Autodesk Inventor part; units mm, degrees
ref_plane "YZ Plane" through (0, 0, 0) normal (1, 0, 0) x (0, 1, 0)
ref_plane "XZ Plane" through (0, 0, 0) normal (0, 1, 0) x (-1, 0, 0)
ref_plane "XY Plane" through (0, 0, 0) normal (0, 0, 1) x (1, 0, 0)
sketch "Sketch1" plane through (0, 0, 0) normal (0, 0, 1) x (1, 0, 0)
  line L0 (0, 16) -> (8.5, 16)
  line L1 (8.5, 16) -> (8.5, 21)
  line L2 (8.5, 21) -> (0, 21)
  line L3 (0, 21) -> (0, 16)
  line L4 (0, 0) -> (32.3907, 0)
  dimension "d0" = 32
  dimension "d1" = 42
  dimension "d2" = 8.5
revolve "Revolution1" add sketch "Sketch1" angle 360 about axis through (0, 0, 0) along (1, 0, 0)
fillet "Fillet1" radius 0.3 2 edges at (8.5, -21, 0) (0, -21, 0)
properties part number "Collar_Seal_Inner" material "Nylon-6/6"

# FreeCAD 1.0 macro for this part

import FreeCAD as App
import Part
import Sketcher

V = App.Vector


def edges_at(feature, points):
    """Names of the edges that pass closest to the given points."""
    edges = feature.Shape.Edges
    near = lambda p: min(range(len(edges)), key=lambda i: edges[i].distToShape(Part.Vertex(*p))[0])
    return sorted({f"Edge{near(p) + 1}" for p in points})


def add_polygon(sketch, points):
    """Adds a closed chain of lines whose ends are joined by coincident constraints."""
    first, n = sketch.GeometryCount, len(points)
    for a, b in zip(points, points[1:] + points[:1]):
        sketch.addGeometry(Part.LineSegment(App.Vector(*a, 0), App.Vector(*b, 0)), False)
    for i in range(n):
        sketch.addConstraint(Sketcher.Constraint("Coincident", first + i, 2, first + (i + 1) % n, 1))

doc = App.newDocument("Part")
params = doc.addObject("Spreadsheet::Sheet", "Params")
for row, (alias, value) in enumerate([
    ("sketch1_width", "8.5 mm"),
    ("sketch1_height", "5 mm"),
    ("revolution_angle", "360 deg"),
    ("fillet_radius", "0.3 mm"),
], start=1):
    params.set(f"A{row}", alias)
    params.set(f"B{row}", "=" + value)
    params.setAlias(f"B{row}", alias)

body = doc.addObject("PartDesign::Body", "Body")

sketch1 = doc.addObject("Sketcher::SketchObject", "Sketch")
body.addObject(sketch1)
sketch1.AttachmentSupport = (doc.XY_Plane, [""])
sketch1.MapMode = "FlatFace"
add_polygon(sketch1, [(0, 21), (0, 16), (8, 16), (8, 21)])
sketch1.addConstraint([
    Sketcher.Constraint("Vertical", 0),
    Sketcher.Constraint("Horizontal", 1),
    Sketcher.Constraint("Vertical", 2),
    Sketcher.Constraint("Horizontal", 3),
    Sketcher.Constraint("PointOnObject", 0, 2, -2),
    Sketcher.Constraint("DistanceX", 1, 1, 1, 2, 8.5),
    Sketcher.Constraint("DistanceY", 0, 2, 0, 1, 5.0),
    Sketcher.Constraint("DistanceY", -1, 1, 0, 2, 16.0),
])
sketch1.setExpression("Constraints[9]", "Params.sketch1_width")
sketch1.setExpression("Constraints[10]", "Params.sketch1_height")
revolution = doc.addObject("PartDesign::Revolution", "Revolution")
body.addObject(revolution)
revolution.Profile = sketch1
revolution.ReferenceAxis = (sketch1, ["H_Axis"])
revolution.setExpression("Angle", "Params.revolution_angle")
doc.recompute()

fillet = doc.addObject("PartDesign::Fillet", "Fillet")
body.addObject(fillet)
fillet.Base = (revolution, edges_at(revolution, [(8.5, -21, 0), (0, -21, 0)]))
fillet.setExpression("Radius", "Params.fillet_radius")

doc.recompute()
